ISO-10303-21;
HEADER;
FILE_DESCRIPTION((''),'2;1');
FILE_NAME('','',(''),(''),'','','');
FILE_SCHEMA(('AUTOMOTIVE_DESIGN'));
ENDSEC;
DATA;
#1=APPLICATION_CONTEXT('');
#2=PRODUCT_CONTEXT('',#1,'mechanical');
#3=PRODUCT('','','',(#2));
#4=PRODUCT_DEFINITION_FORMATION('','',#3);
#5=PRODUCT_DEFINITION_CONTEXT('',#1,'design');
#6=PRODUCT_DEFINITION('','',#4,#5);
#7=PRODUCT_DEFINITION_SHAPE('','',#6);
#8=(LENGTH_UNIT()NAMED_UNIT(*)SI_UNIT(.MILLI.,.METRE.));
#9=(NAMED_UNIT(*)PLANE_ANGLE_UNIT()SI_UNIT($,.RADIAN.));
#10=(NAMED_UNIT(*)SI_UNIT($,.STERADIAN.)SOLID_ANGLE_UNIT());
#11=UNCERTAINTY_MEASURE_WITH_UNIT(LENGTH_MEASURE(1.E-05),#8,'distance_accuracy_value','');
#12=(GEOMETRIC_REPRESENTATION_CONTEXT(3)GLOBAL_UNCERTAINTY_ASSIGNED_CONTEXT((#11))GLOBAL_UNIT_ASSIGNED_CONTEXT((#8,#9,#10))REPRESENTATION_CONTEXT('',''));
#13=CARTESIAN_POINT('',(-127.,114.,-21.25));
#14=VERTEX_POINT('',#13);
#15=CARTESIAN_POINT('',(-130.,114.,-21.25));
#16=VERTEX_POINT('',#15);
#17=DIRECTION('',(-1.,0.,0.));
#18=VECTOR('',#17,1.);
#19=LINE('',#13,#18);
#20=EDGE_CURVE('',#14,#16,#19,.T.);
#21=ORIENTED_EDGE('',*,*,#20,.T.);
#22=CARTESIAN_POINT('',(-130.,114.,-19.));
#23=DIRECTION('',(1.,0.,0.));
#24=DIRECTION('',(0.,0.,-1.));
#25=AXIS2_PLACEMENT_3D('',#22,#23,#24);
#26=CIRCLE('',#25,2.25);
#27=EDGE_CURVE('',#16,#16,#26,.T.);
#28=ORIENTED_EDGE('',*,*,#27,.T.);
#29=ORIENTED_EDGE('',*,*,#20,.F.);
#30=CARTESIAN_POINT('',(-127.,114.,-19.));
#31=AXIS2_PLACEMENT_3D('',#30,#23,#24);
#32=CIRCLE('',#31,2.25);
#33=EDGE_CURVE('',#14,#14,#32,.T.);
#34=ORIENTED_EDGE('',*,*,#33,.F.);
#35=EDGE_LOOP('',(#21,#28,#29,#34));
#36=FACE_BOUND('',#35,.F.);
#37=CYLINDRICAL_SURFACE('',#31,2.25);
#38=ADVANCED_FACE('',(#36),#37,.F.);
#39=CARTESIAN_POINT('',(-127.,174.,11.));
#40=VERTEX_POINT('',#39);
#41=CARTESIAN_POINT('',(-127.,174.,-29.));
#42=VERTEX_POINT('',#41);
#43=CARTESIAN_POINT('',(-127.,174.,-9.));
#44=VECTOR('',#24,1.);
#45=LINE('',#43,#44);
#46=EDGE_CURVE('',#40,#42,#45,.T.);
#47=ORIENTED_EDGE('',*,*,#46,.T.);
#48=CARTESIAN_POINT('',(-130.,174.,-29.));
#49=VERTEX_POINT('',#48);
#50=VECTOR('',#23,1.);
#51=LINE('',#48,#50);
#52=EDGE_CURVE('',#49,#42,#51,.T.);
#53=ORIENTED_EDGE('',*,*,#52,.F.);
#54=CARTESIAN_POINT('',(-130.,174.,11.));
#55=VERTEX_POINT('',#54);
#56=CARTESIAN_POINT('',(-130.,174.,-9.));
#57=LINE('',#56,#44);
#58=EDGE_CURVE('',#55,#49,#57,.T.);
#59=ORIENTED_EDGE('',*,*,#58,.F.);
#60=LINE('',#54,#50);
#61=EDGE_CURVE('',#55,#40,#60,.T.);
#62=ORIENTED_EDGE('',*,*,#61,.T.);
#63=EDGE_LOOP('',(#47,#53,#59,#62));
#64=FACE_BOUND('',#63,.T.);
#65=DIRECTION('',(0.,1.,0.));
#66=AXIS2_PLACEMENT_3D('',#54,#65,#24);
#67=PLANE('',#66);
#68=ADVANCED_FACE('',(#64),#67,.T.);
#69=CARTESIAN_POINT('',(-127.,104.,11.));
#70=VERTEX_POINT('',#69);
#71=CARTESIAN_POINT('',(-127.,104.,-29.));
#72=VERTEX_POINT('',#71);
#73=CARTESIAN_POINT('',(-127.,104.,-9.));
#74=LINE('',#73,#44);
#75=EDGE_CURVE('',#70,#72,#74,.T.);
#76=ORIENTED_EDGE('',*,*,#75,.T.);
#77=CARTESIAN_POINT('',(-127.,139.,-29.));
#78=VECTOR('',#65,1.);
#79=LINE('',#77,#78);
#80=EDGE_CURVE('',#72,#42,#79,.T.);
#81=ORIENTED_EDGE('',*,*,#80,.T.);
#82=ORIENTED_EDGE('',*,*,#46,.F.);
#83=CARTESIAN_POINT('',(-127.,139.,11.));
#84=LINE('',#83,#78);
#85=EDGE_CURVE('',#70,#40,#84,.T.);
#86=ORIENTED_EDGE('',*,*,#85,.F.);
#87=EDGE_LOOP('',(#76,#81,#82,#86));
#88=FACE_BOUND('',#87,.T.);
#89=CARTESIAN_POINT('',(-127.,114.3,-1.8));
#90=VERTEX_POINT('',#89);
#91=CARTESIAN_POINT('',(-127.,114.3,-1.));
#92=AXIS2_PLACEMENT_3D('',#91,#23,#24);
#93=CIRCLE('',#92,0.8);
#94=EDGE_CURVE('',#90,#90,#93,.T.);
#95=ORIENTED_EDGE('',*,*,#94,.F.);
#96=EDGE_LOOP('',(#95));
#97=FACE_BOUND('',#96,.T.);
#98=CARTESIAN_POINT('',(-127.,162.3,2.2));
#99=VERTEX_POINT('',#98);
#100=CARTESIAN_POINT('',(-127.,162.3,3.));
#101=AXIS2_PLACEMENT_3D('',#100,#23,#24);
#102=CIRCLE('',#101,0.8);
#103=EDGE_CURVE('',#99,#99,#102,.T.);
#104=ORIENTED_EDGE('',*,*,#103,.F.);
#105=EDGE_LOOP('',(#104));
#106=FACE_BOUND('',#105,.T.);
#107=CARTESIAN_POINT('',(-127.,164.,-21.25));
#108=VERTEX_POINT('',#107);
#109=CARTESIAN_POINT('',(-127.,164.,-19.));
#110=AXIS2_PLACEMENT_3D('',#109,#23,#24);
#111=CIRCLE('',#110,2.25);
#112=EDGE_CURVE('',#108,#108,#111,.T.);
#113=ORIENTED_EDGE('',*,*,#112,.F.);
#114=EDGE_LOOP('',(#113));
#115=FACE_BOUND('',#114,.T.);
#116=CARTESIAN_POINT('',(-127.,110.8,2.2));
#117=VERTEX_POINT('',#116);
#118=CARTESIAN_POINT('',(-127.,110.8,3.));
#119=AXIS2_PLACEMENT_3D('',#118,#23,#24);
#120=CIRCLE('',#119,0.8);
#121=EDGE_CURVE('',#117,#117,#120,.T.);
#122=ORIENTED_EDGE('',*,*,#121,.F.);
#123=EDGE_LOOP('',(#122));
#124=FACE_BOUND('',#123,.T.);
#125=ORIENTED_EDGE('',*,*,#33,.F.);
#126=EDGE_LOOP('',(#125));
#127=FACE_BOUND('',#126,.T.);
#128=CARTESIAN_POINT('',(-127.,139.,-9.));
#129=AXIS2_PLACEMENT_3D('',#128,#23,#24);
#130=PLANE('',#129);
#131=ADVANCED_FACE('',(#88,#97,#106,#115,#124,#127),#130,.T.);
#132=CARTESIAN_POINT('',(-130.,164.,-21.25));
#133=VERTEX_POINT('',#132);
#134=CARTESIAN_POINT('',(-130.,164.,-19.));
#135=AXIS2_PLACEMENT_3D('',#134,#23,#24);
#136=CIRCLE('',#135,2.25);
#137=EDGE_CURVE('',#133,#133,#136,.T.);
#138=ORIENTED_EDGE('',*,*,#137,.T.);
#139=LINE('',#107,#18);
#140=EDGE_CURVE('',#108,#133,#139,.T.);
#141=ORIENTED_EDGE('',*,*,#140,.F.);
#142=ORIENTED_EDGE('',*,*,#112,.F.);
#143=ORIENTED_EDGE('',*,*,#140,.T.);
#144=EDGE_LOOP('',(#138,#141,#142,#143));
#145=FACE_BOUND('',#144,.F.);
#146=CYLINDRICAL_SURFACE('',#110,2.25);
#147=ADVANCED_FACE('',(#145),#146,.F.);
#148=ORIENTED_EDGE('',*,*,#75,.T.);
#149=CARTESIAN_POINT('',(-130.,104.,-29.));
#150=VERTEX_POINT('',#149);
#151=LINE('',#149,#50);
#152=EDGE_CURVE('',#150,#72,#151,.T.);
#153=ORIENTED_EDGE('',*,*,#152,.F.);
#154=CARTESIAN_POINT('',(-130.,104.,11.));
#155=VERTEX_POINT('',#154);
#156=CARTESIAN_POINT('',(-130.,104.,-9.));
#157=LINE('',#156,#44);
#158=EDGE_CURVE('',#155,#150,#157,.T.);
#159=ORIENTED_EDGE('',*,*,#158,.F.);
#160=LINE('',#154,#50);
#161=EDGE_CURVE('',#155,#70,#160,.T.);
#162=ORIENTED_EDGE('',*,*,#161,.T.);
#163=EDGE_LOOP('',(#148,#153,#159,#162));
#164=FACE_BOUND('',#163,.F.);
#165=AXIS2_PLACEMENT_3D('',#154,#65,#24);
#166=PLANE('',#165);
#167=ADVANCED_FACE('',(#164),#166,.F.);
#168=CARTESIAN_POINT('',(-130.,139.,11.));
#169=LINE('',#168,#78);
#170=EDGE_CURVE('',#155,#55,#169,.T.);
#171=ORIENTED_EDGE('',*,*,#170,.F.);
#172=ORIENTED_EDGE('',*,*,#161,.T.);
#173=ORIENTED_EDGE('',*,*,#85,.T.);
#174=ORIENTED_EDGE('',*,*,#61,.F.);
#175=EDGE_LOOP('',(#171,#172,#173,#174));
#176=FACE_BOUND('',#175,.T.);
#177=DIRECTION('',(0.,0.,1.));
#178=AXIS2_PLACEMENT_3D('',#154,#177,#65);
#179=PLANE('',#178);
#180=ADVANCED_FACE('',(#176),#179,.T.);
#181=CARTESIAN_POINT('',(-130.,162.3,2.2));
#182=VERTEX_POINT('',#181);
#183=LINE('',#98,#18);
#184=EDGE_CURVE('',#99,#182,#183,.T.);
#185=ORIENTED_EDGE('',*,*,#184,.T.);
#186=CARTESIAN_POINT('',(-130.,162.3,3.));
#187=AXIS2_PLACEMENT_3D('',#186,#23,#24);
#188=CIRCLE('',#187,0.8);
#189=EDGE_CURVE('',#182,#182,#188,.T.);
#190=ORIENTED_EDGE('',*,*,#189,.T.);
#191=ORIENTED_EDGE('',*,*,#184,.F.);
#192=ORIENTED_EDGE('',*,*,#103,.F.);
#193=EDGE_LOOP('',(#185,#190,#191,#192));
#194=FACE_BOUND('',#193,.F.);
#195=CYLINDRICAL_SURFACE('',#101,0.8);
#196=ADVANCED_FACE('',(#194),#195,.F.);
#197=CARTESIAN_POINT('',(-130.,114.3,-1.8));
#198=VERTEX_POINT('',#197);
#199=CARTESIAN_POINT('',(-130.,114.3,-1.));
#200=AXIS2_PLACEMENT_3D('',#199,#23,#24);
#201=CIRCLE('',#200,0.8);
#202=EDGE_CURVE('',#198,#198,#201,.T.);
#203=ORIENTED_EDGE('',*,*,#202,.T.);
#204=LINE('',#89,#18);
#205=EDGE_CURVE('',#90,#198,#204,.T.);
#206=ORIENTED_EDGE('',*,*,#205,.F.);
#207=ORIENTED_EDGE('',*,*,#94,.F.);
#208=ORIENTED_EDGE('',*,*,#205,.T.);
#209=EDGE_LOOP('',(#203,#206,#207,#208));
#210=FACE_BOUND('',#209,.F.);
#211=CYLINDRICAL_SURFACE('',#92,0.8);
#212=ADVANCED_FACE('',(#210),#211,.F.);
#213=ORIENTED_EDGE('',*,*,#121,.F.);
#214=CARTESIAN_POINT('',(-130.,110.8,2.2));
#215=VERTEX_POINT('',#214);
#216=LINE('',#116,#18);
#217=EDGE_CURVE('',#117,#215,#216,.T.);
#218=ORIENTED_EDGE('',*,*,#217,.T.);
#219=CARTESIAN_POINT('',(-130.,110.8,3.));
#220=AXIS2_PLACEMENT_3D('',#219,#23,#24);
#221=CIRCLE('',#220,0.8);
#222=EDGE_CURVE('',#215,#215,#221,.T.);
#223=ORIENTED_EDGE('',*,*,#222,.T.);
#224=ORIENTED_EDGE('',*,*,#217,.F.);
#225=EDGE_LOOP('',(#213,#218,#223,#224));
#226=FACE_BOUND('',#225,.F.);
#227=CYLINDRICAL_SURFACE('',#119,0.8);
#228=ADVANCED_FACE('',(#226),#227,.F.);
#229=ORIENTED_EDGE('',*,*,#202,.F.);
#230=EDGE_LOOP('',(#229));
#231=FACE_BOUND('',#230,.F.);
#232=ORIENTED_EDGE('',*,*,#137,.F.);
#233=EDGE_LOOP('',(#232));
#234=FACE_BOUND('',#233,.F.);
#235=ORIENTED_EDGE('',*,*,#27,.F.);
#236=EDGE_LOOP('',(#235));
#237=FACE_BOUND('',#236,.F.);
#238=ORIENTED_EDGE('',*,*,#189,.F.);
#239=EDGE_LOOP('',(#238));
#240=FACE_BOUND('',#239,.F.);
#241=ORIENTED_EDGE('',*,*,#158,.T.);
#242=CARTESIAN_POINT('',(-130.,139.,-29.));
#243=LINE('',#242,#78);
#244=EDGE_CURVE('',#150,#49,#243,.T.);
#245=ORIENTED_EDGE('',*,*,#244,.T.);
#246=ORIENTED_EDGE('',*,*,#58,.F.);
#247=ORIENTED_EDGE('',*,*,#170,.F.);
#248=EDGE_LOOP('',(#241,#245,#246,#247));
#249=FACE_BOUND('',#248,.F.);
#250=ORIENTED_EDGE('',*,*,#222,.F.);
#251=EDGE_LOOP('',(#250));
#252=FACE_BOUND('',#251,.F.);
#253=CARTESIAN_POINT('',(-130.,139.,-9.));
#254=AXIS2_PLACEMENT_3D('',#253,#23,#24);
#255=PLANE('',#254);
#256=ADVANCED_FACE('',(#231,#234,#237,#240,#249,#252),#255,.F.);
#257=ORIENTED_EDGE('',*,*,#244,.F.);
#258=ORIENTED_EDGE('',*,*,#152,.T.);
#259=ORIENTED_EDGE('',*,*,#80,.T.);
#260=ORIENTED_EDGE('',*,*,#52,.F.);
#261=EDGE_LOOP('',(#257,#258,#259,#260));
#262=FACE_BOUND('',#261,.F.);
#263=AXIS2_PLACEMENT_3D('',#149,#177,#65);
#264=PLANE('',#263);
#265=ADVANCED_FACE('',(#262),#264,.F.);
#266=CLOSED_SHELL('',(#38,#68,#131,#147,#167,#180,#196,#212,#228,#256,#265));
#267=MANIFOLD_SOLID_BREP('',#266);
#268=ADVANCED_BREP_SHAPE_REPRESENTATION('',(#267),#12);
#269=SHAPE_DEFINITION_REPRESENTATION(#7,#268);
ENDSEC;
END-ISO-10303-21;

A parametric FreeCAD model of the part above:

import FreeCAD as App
import Part
import Sketcher
Q = App.Units.Quantity


def add_polygon(sketch, points):
    """Adds a closed chain of lines whose ends are joined by coincident constraints."""
    first, n = sketch.GeometryCount, len(points)
    for a, b in zip(points, points[1:] + points[:1]):
        sketch.addGeometry(Part.LineSegment(App.Vector(*a, 0), App.Vector(*b, 0)), False)
    for i in range(n):
        sketch.addConstraint(Sketcher.Constraint("Coincident", first + i, 2, first + (i + 1) % n, 1))

doc = App.newDocument("Part")
body = doc.addObject("PartDesign::Body", "Body")

sketch1 = doc.addObject("Sketcher::SketchObject", "Sketch")
body.addObject(sketch1)
sketch1.AttachmentSupport = (doc.XY_Plane, [""])
sketch1.MapMode = "FlatFace"
add_polygon(sketch1, [(-20, 35), (-20, -35), (20, -35), (20, 35)])
sketch1.addConstraint([
    Sketcher.Constraint("Vertical", 0),
    Sketcher.Constraint("Horizontal", 1),
    Sketcher.Constraint("Vertical", 2),
    Sketcher.Constraint("Horizontal", 3),
    Sketcher.Constraint("Symmetric", 0, 2, 2, 2, -1, 1),
    Sketcher.Constraint("DistanceX", 1, 1, 1, 2, Q("40 mm")),
    Sketcher.Constraint("DistanceY", 0, 2, 0, 1, Q("70 mm")),
])
pad1 = doc.addObject("PartDesign::Pad", "Pad")
body.addObject(pad1)
pad1.Profile = sketch1
pad1.Length = 3

sketch2 = doc.addObject("Sketcher::SketchObject", "Sketch001")
body.addObject(sketch2)
sketch2.AttachmentSupport = (doc.XY_Plane, [""])
sketch2.MapMode = "FlatFace"
sketch2.AttachmentOffset = App.Placement(App.Vector(0, 0, 3), App.Rotation())
sketch2.addGeometry([
    Part.Circle(App.Vector(10, 25, 0), App.Vector(0, 0, 1), 2.25),
    Part.Circle(App.Vector(10, -25, 0), App.Vector(0, 0, 1), 2.25),
], False)
sketch2.addConstraint([
    Sketcher.Constraint("Equal", 0, 1),
    Sketcher.Constraint("Symmetric", 0, 3, 1, 3, -1),
    Sketcher.Constraint("Diameter", 0, Q("4.5 mm")),
    Sketcher.Constraint("DistanceX", -1, 1, 0, 3, Q("10 mm")),
    Sketcher.Constraint("DistanceY", -1, 1, 0, 3, Q("25 mm")),
])
pocket1 = doc.addObject("PartDesign::Pocket", "Pocket")
body.addObject(pocket1)
pocket1.Profile = sketch2
pocket1.Type = "ThroughAll"

sketch3 = doc.addObject("Sketcher::SketchObject", "Sketch002")
body.addObject(sketch3)
sketch3.AttachmentSupport = (doc.XY_Plane, [""])
sketch3.MapMode = "FlatFace"
sketch3.AttachmentOffset = App.Placement(App.Vector(0, 0, 3), App.Rotation())
sketch3.addGeometry([
    Part.Circle(App.Vector(-12, 23.3, 0), App.Vector(0, 0, 1), 0.8),
    Part.Circle(App.Vector(-12, -28.2, 0), App.Vector(0, 0, 1), 0.8),
    Part.Circle(App.Vector(-8, -24.7, 0), App.Vector(0, 0, 1), 0.8),
], False)
sketch3.addConstraint([
    Sketcher.Constraint("Equal", 0, 1),
    Sketcher.Constraint("Equal", 1, 2),
    Sketcher.Constraint("Vertical", 0, 3, 1, 3),
    Sketcher.Constraint("Diameter", 0, Q("1.6 mm")),
    Sketcher.Constraint("DistanceX", 0, 3, -1, 1, Q("12 mm")),
    Sketcher.Constraint("DistanceX", 2, 3, -1, 1, Q("8 mm")),
    Sketcher.Constraint("DistanceY", 2, 3, 0, 3, Q("48 mm")),
    Sketcher.Constraint("DistanceY", -1, 1, 0, 3, Q("23.3 mm")),
    Sketcher.Constraint("DistanceY", 1, 3, -1, 1, Q("28.2 mm")),
])
pocket2 = doc.addObject("PartDesign::Pocket", "Pocket001")
body.addObject(pocket2)
pocket2.Profile = sketch3
pocket2.Type = "ThroughAll"
body2 = doc.addObject("PartDesign::Body", "Body001")
doc.recompute()

body.Placement = App.Placement(App.Vector(-130, 139, -9), App.Rotation(App.Vector(0, 1, 0), 90))
boolean = doc.addObject("PartDesign::Boolean", "Boolean")
body2.addObject(boolean)
boolean.Type = "Fuse"
boolean.addObjects([body])

doc.recompute()
